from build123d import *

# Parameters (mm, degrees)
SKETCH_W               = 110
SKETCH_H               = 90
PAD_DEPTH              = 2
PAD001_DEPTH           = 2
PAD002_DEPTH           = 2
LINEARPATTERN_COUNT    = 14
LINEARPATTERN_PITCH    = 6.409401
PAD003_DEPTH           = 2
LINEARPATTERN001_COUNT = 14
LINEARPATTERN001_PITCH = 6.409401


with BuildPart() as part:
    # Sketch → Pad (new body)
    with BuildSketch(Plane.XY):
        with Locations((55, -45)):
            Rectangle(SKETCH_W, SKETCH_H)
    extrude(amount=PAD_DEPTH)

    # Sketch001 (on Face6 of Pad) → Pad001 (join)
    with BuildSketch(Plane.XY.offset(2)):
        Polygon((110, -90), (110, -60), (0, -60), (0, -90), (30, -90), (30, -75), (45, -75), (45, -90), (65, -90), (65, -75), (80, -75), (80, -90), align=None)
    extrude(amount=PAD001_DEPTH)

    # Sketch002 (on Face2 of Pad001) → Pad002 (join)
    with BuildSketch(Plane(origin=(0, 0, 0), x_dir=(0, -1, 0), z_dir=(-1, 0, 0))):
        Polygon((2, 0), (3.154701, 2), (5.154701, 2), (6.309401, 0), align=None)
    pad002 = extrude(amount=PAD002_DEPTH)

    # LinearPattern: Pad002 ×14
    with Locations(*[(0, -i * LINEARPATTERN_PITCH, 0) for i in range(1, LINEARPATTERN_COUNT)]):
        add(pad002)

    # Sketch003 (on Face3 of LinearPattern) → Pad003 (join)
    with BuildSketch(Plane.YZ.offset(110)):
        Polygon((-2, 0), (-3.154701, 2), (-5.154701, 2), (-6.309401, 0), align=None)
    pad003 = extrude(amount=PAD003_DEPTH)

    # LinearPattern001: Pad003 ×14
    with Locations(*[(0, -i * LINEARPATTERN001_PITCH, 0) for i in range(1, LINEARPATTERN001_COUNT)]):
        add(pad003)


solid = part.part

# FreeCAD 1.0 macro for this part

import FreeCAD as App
import Part
import Sketcher

V = App.Vector
Q = App.Units.Quantity

doc = App.newDocument("Part")
body = doc.addObject("PartDesign::Body", "Body")

# Sketch on XY plane
sketch1 = doc.addObject("Sketcher::SketchObject", "Sketch")
body.addObject(sketch1)
sketch1.AttachmentSupport = (doc.XY_Plane, [""])
sketch1.MapMode = "FlatFace"
sketch1.addGeometry([
    Part.LineSegment(V(0, 0, 0), V(0, -90, 0)),
    Part.LineSegment(V(0, -90, 0), V(110, -90, 0)),
    Part.LineSegment(V(110, -90, 0), V(110, 0, 0)),
    Part.LineSegment(V(110, 0, 0), V(0, 0, 0)),
], False)
sketch1.addConstraint([
    Sketcher.Constraint("Coincident", 0, 2, 1, 1),
    Sketcher.Constraint("Coincident", 1, 2, 2, 1),
    Sketcher.Constraint("Coincident", 2, 2, 3, 1),
    Sketcher.Constraint("Coincident", 3, 2, 0, 1),
    Sketcher.Constraint("Vertical", 0),
    Sketcher.Constraint("Horizontal", 1),
    Sketcher.Constraint("Vertical", 2),
    Sketcher.Constraint("Horizontal", 3),
    Sketcher.Constraint("Coincident", 3, 2, -1, 1),
    Sketcher.Constraint("DistanceX", 1, 1, 1, 2, Q("110 mm")),
    Sketcher.Constraint("DistanceY", 0, 2, 0, 1, Q("90 mm")),
])
pad1 = doc.addObject("PartDesign::Pad", "Pad")
body.addObject(pad1)
pad1.Profile = sketch1
pad1.Length = 2

# Sketch on XY plane
sketch2 = doc.addObject("Sketcher::SketchObject", "Sketch001")
body.addObject(sketch2)
sketch2.AttachmentSupport = (doc.XY_Plane, [""])
sketch2.MapMode = "FlatFace"
sketch2.AttachmentOffset = App.Placement(V(0, 0, 2), App.Rotation())
sketch2.addGeometry([
    Part.LineSegment(V(110, -90, 0), V(110, -60, 0)),  # 0
    Part.LineSegment(V(110, -60, 0), V(0, -60, 0)),  # 1
    Part.LineSegment(V(0, -60, 0), V(0, -90, 0)),  # 2
    Part.LineSegment(V(0, -90, 0), V(30, -90, 0)),  # 3
    Part.LineSegment(V(30, -90, 0), V(30, -75, 0)),  # 4
    Part.LineSegment(V(30, -75, 0), V(45, -75, 0)),  # 5
    Part.LineSegment(V(45, -75, 0), V(45, -90, 0)),  # 6
    Part.LineSegment(V(45, -90, 0), V(65, -90, 0)),  # 7
    Part.LineSegment(V(65, -90, 0), V(65, -75, 0)),  # 8
    Part.LineSegment(V(65, -75, 0), V(80, -75, 0)),  # 9
    Part.LineSegment(V(80, -75, 0), V(80, -90, 0)),  # 10
    Part.LineSegment(V(80, -90, 0), V(110, -90, 0)),  # 11
], False)
sketch2.addConstraint([
    Sketcher.Constraint("Coincident", 0, 2, 1, 1),
    Sketcher.Constraint("Coincident", 1, 2, 2, 1),
    Sketcher.Constraint("Coincident", 2, 2, 3, 1),
    Sketcher.Constraint("Coincident", 3, 2, 4, 1),
    Sketcher.Constraint("Coincident", 4, 2, 5, 1),
    Sketcher.Constraint("Coincident", 5, 2, 6, 1),
    Sketcher.Constraint("Coincident", 6, 2, 7, 1),
    Sketcher.Constraint("Coincident", 7, 2, 8, 1),
    Sketcher.Constraint("Coincident", 8, 2, 9, 1),
    Sketcher.Constraint("Coincident", 9, 2, 10, 1),
    Sketcher.Constraint("Coincident", 10, 2, 11, 1),
    Sketcher.Constraint("Coincident", 11, 2, 0, 1),
    Sketcher.Constraint("Vertical", 0),
    Sketcher.Constraint("Horizontal", 1),
    Sketcher.Constraint("Vertical", 2),
    Sketcher.Constraint("Horizontal", 3),
    Sketcher.Constraint("Vertical", 4),
    Sketcher.Constraint("Horizontal", 5),
    Sketcher.Constraint("Vertical", 6),
    Sketcher.Constraint("Horizontal", 7),
    Sketcher.Constraint("Vertical", 8),
    Sketcher.Constraint("Horizontal", 9),
    Sketcher.Constraint("Vertical", 10),
    Sketcher.Constraint("Horizontal", 11),
    Sketcher.Constraint("PointOnObject", 1, 2, -2),
    Sketcher.Constraint("Horizontal", 3, 2, 6, 2),
    Sketcher.Constraint("Horizontal", 5, 2, 8, 2),
    Sketcher.Constraint("Horizontal", 7, 2, 10, 2),
    Sketcher.Constraint("Equal", 5, 9),
    Sketcher.Constraint("Equal", 3, 11),
    Sketcher.Constraint("Equal", 11, 0),
    Sketcher.Constraint("Equal", 9, 4),
    Sketcher.Constraint("DistanceX", 1, 2, 1, 1, Q("110 mm")),
    Sketcher.Constraint("DistanceX", 3, 1, 3, 2, Q("30 mm")),
    Sketcher.Constraint("DistanceX", 5, 1, 5, 2, Q("15 mm")),
    Sketcher.Constraint("DistanceY", 0, 2, -1, 1, Q("60 mm")),
])
pad2 = doc.addObject("PartDesign::Pad", "Pad001")
body.addObject(pad2)
pad2.Profile = sketch2
pad2.Length = 2

# Sketch on YZ plane
sketch3 = doc.addObject("Sketcher::SketchObject", "Sketch002")
body.addObject(sketch3)
sketch3.AttachmentSupport = (doc.YZ_Plane, [""])
sketch3.MapMode = "FlatFace"
sketch3.addGeometry([
    Part.LineSegment(V(-3.2, 2, 0), V(-2, 0, 0)),
    Part.LineSegment(V(-2, 0, 0), V(-6.3, 0, 0)),
    Part.LineSegment(V(-6.3, 0, 0), V(-5.2, 2, 0)),
    Part.LineSegment(V(-5.2, 2, 0), V(-3.2, 2, 0)),
], False)
sketch3.addConstraint([
    Sketcher.Constraint("Coincident", 0, 2, 1, 1),
    Sketcher.Constraint("Coincident", 1, 2, 2, 1),
    Sketcher.Constraint("Coincident", 2, 2, 3, 1),
    Sketcher.Constraint("Coincident", 3, 2, 0, 1),
    Sketcher.Constraint("Horizontal", 1),
    Sketcher.Constraint("Horizontal", 3),
    Sketcher.Constraint("PointOnObject", 0, 2, -1),
    Sketcher.Constraint("Equal", 0, 2),
    Sketcher.Constraint("DistanceX", 3, 1, 3, 2, Q("2 mm")),
    Sketcher.Constraint("Angle", 0, Q("-59.99999 deg")),
    Sketcher.Constraint("DistanceX", 0, 2, -1, 1, Q("2 mm")),
    Sketcher.Constraint("DistanceY", -1, 1, 2, 2, Q("2 mm")),
])
pad3 = doc.addObject("PartDesign::Pad", "Pad002")
body.addObject(pad3)
pad3.Profile = sketch3
pad3.Length = 2
pad3.Reversed = True
doc.recompute()

linearpattern = doc.addObject("PartDesign::LinearPattern", "LinearPattern")
body.addObject(linearpattern)
linearpattern.Originals = [pad3]
linearpattern.Direction = (doc.Y_Axis, [""])
linearpattern.Mode = "offset"
linearpattern.Offset = 6.409401
linearpattern.Occurrences = 14
linearpattern.Reversed = True
body.Tip = linearpattern

# Sketch on YZ plane
sketch4 = doc.addObject("Sketcher::SketchObject", "Sketch003")
body.addObject(sketch4)
sketch4.AttachmentSupport = (doc.YZ_Plane, [""])
sketch4.MapMode = "FlatFace"
sketch4.AttachmentOffset = App.Placement(V(0, 0, 110), App.Rotation())
sketch4.addGeometry([
    Part.LineSegment(V(-2, 0, 0), V(-3.2, 2, 0)),
    Part.LineSegment(V(-3.2, 2, 0), V(-5.2, 2, 0)),
    Part.LineSegment(V(-5.2, 2, 0), V(-6.3, 0, 0)),
    Part.LineSegment(V(-6.3, 0, 0), V(-2, 0, 0)),
], False)
sketch4.addConstraint([
    Sketcher.Constraint("Coincident", 0, 2, 1, 1),
    Sketcher.Constraint("Coincident", 1, 2, 2, 1),
    Sketcher.Constraint("Coincident", 2, 2, 3, 1),
    Sketcher.Constraint("Coincident", 3, 2, 0, 1),
    Sketcher.Constraint("Horizontal", 1),
    Sketcher.Constraint("Horizontal", 3),
    Sketcher.Constraint("PointOnObject", 2, 2, -1),
    Sketcher.Constraint("Equal", 0, 2),
    Sketcher.Constraint("DistanceX", 1, 2, 1, 1, Q("2 mm")),
    Sketcher.Constraint("Angle", 0, Q("120.00001 deg")),
    Sketcher.Constraint("DistanceY", -1, 1, 0, 2, Q("2 mm")),
    Sketcher.Constraint("DistanceX", 3, 2, -1, 1, Q("2 mm")),
])
pad4 = doc.addObject("PartDesign::Pad", "Pad003")
body.addObject(pad4)
pad4.Profile = sketch4
pad4.Length = 2
doc.recompute()

linearpattern2 = doc.addObject("PartDesign::LinearPattern", "LinearPattern001")
body.addObject(linearpattern2)
linearpattern2.Originals = [pad4]
linearpattern2.Direction = (doc.Y_Axis, [""])
linearpattern2.Mode = "offset"
linearpattern2.Offset = 6.409401
linearpattern2.Occurrences = 14
linearpattern2.Reversed = True
body.Tip = linearpattern2

doc.recompute()
